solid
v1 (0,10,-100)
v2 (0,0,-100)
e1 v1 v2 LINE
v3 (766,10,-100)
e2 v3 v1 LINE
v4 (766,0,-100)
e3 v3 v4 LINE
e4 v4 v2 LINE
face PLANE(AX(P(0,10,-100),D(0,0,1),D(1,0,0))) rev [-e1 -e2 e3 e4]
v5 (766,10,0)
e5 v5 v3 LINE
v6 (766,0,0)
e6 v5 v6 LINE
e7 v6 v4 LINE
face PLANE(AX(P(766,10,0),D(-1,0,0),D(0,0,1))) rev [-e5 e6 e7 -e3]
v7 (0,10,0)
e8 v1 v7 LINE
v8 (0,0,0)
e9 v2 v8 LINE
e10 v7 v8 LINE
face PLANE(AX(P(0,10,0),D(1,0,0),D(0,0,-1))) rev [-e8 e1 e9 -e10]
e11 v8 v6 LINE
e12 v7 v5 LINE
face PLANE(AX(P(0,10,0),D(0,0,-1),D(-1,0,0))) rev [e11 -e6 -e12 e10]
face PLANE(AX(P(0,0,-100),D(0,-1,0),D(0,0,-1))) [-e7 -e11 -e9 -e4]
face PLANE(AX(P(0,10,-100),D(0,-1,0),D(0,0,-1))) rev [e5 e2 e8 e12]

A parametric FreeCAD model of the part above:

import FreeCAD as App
import Part
import Sketcher


def add_polygon(sketch, points):
    """Adds a closed chain of lines whose ends are joined by coincident constraints."""
    first, n = sketch.GeometryCount, len(points)
    for a, b in zip(points, points[1:] + points[:1]):
        sketch.addGeometry(Part.LineSegment(App.Vector(*a, 0), App.Vector(*b, 0)), False)
    for i in range(n):
        sketch.addConstraint(Sketcher.Constraint("Coincident", first + i, 2, first + (i + 1) % n, 1))

doc = App.newDocument("Part")
body = doc.addObject("PartDesign::Body", "Body")

# Sketch on XZ plane
sketch1 = doc.addObject("Sketcher::SketchObject", "Sketch")
body.addObject(sketch1)
sketch1.AttachmentSupport = (doc.XZ_Plane, [""])
sketch1.MapMode = "FlatFace"
add_polygon(sketch1, [(0, -100), (0, 0), (766, 0), (766, -100)])  # lines 0-3
sketch1.addConstraint([
    Sketcher.Constraint("Vertical", 0),
    Sketcher.Constraint("Horizontal", 1),
    Sketcher.Constraint("Vertical", 2),
    Sketcher.Constraint("Horizontal", 3),
    Sketcher.Constraint("Coincident", 0, 2, -1, 1),
    Sketcher.Constraint("DistanceX", 1, 1, 1, 2, 766.0),
    Sketcher.Constraint("DistanceY", 0, 1, 0, 2, 100.0),
])
pad1 = doc.addObject("PartDesign::Pad", "Pad")
body.addObject(pad1)
pad1.Profile = sketch1
pad1.Length = 10
pad1.Reversed = True

doc.recompute()
